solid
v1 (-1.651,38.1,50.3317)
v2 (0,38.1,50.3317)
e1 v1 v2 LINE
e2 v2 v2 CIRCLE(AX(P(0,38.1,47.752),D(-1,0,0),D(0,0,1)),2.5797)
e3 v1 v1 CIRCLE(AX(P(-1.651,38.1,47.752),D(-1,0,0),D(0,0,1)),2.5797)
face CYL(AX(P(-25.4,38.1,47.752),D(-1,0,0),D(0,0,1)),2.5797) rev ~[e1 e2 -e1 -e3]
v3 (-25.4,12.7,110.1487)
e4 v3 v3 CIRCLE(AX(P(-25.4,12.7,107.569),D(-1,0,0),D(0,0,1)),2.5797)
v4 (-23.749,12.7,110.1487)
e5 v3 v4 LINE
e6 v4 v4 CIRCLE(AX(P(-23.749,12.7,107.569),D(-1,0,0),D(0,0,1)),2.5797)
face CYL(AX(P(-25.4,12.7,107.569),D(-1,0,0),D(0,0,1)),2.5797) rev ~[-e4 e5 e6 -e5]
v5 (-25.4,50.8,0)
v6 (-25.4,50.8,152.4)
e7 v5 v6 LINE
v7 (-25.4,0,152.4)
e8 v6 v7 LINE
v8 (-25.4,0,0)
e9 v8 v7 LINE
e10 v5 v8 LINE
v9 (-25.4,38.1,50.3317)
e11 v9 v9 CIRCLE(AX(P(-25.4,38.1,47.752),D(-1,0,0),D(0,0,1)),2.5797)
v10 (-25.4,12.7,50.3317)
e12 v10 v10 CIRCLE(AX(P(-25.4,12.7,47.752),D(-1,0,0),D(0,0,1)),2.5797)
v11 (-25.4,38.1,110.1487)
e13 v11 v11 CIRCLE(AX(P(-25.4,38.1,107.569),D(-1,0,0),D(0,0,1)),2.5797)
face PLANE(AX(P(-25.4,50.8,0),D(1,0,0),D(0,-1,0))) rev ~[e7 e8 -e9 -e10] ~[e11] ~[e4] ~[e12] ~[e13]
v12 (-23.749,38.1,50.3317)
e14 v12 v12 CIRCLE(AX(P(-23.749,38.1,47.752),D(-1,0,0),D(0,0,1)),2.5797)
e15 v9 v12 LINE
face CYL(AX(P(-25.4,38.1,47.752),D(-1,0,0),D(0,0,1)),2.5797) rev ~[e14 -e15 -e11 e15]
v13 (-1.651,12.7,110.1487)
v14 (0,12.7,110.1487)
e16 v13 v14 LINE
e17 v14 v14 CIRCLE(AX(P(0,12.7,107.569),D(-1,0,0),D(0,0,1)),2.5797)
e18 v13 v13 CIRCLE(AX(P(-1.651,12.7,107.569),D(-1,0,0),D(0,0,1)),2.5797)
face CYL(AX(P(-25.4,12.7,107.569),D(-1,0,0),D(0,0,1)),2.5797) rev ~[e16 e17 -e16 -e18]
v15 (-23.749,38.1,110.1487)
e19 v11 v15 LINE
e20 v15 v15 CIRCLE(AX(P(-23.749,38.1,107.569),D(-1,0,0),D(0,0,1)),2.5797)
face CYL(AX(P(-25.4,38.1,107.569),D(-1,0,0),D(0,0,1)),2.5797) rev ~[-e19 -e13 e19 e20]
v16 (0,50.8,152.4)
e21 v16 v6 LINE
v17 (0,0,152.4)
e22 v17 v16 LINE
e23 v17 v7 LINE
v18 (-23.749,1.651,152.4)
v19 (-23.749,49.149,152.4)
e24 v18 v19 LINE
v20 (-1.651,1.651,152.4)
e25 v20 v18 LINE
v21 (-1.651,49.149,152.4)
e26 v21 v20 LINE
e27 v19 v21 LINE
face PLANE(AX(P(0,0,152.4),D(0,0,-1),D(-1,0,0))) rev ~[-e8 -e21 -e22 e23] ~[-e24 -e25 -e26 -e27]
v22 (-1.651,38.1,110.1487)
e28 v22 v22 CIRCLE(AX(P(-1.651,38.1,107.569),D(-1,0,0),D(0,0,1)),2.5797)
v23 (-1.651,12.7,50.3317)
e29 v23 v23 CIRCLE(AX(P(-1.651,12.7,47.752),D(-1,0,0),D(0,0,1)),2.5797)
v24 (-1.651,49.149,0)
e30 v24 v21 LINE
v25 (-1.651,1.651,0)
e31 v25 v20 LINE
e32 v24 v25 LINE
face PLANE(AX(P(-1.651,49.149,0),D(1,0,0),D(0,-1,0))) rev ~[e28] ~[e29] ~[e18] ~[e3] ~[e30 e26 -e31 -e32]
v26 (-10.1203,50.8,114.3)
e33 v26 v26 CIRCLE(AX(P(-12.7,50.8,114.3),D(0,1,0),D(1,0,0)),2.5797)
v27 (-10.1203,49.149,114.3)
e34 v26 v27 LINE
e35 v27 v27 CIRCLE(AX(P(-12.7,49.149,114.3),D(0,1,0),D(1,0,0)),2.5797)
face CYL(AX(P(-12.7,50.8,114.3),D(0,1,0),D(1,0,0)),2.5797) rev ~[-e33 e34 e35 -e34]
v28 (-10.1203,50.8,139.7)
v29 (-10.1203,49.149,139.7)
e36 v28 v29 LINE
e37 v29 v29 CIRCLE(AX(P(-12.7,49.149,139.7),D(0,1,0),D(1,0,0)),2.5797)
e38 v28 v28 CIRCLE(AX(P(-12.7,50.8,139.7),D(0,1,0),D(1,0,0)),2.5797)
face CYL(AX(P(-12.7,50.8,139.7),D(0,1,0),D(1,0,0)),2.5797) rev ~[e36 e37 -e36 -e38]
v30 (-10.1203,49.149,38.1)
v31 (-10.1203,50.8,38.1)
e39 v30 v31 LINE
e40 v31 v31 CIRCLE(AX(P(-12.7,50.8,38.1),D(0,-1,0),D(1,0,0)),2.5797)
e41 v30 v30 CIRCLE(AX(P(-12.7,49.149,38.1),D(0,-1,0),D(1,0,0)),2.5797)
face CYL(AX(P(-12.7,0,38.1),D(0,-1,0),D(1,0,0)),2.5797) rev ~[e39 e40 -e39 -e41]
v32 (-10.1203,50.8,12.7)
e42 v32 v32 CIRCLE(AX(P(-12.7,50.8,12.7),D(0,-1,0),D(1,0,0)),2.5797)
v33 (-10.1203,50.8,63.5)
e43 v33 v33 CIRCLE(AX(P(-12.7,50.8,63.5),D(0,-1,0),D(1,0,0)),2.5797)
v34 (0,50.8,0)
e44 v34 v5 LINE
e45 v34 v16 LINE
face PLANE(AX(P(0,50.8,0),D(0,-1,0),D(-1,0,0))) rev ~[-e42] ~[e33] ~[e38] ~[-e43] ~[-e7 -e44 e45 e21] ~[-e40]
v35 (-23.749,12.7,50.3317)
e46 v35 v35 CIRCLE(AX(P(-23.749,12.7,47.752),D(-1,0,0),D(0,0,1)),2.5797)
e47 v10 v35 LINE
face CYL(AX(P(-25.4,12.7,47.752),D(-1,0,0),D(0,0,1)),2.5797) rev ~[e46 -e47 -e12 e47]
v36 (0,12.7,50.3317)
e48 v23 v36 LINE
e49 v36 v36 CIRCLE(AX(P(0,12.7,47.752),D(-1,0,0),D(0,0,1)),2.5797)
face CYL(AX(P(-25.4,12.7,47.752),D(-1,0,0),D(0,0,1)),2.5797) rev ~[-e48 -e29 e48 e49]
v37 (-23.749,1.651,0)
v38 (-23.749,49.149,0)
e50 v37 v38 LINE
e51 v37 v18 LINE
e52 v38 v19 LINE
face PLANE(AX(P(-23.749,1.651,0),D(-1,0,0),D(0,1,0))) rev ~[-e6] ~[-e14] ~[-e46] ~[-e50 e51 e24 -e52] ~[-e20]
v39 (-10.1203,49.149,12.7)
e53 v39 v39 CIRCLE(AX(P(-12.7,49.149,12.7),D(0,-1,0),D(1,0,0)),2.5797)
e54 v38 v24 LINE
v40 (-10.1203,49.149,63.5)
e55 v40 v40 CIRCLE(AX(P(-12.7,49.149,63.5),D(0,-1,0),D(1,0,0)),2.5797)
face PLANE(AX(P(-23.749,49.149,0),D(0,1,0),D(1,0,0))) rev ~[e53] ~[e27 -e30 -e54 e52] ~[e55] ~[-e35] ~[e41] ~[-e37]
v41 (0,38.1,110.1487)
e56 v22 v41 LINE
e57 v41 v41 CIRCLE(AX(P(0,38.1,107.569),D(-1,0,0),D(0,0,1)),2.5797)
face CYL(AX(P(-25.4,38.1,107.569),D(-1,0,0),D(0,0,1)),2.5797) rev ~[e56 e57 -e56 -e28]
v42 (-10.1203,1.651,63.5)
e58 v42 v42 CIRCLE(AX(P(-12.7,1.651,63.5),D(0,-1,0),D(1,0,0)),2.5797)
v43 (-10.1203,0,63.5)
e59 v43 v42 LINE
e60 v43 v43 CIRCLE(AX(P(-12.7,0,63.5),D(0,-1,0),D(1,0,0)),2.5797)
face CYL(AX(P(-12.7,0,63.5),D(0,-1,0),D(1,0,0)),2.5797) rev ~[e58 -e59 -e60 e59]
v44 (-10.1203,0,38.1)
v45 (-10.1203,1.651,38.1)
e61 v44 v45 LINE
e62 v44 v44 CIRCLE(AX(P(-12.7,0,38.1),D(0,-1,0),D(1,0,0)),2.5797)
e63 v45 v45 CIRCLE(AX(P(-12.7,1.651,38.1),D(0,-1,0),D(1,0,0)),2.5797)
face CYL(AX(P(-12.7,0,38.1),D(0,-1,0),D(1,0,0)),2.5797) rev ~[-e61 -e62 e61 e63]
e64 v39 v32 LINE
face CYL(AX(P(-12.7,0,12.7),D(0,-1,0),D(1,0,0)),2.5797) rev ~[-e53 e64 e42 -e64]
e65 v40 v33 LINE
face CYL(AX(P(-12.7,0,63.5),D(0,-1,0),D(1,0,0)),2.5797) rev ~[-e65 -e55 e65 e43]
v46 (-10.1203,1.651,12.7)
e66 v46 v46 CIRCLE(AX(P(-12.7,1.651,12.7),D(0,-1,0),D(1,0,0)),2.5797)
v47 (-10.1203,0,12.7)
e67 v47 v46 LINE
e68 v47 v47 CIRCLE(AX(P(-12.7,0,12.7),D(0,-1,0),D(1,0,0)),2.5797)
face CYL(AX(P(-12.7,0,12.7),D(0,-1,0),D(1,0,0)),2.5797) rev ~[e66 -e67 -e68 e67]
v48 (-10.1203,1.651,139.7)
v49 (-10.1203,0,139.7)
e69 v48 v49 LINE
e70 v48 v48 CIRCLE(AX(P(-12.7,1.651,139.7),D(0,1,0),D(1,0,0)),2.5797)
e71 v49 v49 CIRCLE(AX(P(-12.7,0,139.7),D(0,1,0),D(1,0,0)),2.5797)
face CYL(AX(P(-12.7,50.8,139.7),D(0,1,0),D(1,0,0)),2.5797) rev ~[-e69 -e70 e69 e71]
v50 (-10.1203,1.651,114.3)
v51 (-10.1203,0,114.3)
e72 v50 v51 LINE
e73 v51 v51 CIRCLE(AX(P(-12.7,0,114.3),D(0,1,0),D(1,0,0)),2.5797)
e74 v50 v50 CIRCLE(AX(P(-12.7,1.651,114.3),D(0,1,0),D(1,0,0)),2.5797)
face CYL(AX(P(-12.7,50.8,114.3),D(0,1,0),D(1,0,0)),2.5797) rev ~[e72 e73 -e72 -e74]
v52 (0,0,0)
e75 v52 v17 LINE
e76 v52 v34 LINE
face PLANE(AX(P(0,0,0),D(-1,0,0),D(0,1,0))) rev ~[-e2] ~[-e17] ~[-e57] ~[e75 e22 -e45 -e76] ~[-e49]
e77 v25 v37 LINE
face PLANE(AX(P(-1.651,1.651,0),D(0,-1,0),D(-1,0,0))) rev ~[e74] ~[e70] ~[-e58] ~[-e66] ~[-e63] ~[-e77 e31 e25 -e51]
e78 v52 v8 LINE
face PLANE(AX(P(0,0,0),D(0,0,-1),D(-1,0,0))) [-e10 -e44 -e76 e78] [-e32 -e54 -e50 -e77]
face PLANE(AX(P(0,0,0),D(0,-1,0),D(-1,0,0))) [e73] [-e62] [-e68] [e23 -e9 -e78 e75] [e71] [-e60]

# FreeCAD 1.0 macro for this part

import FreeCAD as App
import Part
import Sketcher

V = App.Vector
Q = App.Units.Quantity


def add_polygon(sketch, points):
    """Adds a closed chain of lines whose ends are joined by coincident constraints."""
    first, n = sketch.GeometryCount, len(points)
    for a, b in zip(points, points[1:] + points[:1]):
        sketch.addGeometry(Part.LineSegment(App.Vector(*a, 0), App.Vector(*b, 0)), False)
    for i in range(n):
        sketch.addConstraint(Sketcher.Constraint("Coincident", first + i, 2, first + (i + 1) % n, 1))

doc = App.newDocument("Part")
body = doc.addObject("PartDesign::Body", "Body")

sketch1 = body.newObject("Sketcher::SketchObject", "Sketch")
sketch1.AttachmentSupport = (doc.getObject("XY_Plane"), [""])
sketch1.MapMode = "FlatFace"
add_polygon(sketch1, [(0, 51), (0, 0), (-25, 0), (-25, 51)])
add_polygon(sketch1, [(-2, 49), (-24, 49), (-24, 2), (-2, 2)])
sketch1.addConstraint(Sketcher.Constraint("Vertical", 0))
sketch1.addConstraint(Sketcher.Constraint("Horizontal", 1))
sketch1.addConstraint(Sketcher.Constraint("Vertical", 2))
sketch1.addConstraint(Sketcher.Constraint("Horizontal", 3))
sketch1.addConstraint(Sketcher.Constraint("Horizontal", 4))
sketch1.addConstraint(Sketcher.Constraint("Vertical", 5))
sketch1.addConstraint(Sketcher.Constraint("Horizontal", 6))
sketch1.addConstraint(Sketcher.Constraint("Vertical", 7))
sketch1.addConstraint(Sketcher.Constraint("Coincident", 0, 2, -1, 1))
sketch1.addConstraint(Sketcher.Constraint("DistanceX", 1, 2, 1, 1, Q("1 in")))
sketch1.addConstraint(Sketcher.Constraint("DistanceY", 0, 2, 0, 1, Q("2 in")))
sketch1.addConstraint(Sketcher.Constraint("DistanceY", -1, 1, 5, 2, Q("0.065 in")))
sketch1.addConstraint(Sketcher.Constraint("DistanceX", 6, 2, -1, 1, Q("0.065 in")))
sketch1.addConstraint(Sketcher.Constraint("DistanceX", 2, 2, 4, 2, Q("0.065 in")))
sketch1.addConstraint(Sketcher.Constraint("DistanceY", 4, 2, 2, 2, Q("0.065 in")))
pad1 = body.newObject("PartDesign::Pad", "Pad")
pad1.Profile = sketch1
pad1.Length = Q("6 in")

sketch2 = body.newObject("Sketcher::SketchObject", "Sketch001")
sketch2.AttachmentSupport = (doc.getObject("XZ_Plane"), [""])
sketch2.MapMode = "FlatFace"
sketch2.addGeometry(Part.Circle(V(38.1, 12.7, 0), V(0, 0, 1), 2.6), False)
sketch2.addGeometry(Part.Circle(V(12.7, 12.7, 0), V(0, 0, 1), 2.6), False)
sketch2.addGeometry(Part.Circle(V(-12.7, 12.7, 0), V(0, 0, 1), 2.6), False)
sketch2.addGeometry(Part.Circle(V(-12.7, 38.1, 0), V(0, 0, 1), 2.6), False)
sketch2.addGeometry(Part.Circle(V(-12.7, 63.5, 0), V(0, 0, 1), 2.6), False)
sketch2.addConstraint(Sketcher.Constraint("Equal", 0, 1))
sketch2.addConstraint(Sketcher.Constraint("Equal", 1, 2))
sketch2.addConstraint(Sketcher.Constraint("Equal", 2, 3))
sketch2.addConstraint(Sketcher.Constraint("Equal", 3, 4))
sketch2.addConstraint(Sketcher.Constraint("Symmetric", 1, 3, 2, 3, -2))
sketch2.addConstraint(Sketcher.Constraint("Horizontal", 0, 3, 1, 3))
sketch2.addConstraint(Sketcher.Constraint("Vertical", 2, 3, 3, 3))
sketch2.addConstraint(Sketcher.Constraint("Vertical", 3, 3, 4, 3))
sketch2.addConstraint(Sketcher.Constraint("Diameter", 0, Q("0.203126 in")))
sketch2.addConstraint(Sketcher.Constraint("DistanceX", 1, 3, 0, 3, Q("1 in")))
sketch2.addConstraint(Sketcher.Constraint("DistanceX", 2, 3, 1, 3, Q("1 in")))
sketch2.addConstraint(Sketcher.Constraint("DistanceY", 2, 3, 3, 3, Q("1 in")))
sketch2.addConstraint(Sketcher.Constraint("DistanceY", 3, 3, 4, 3, Q("1 in")))
sketch2.addConstraint(Sketcher.Constraint("DistanceY", -1, 1, 0, 3, Q("0.5 in")))
pocket1 = body.newObject("PartDesign::Pocket", "Pocket")
pocket1.Profile = sketch2
pocket1.Length = Q("3 in")

sketch3 = body.newObject("Sketcher::SketchObject", "Sketch002")
sketch3.AttachmentSupport = (doc.getObject("YZ_Plane"), [""])
sketch3.MapMode = "FlatFace"
sketch3.AttachmentOffset = App.Placement(V(0, 0, -1 * 25.4), App.Rotation())
sketch3.addGeometry(Part.Circle(V(38.1, 107.6, 0), V(0, 0, 1), 2.6), False)
sketch3.addGeometry(Part.Circle(V(38.1, 47.8, 0), V(0, 0, 1), 2.6), False)
sketch3.addGeometry(Part.Circle(V(12.7, 107.6, 0), V(0, 0, 1), 2.6), False)
sketch3.addGeometry(Part.Circle(V(12.7, 47.8, 0), V(0, 0, 1), 2.6), False)
sketch3.addConstraint(Sketcher.Constraint("Equal", 0, 1))
sketch3.addConstraint(Sketcher.Constraint("Equal", 1, 2))
sketch3.addConstraint(Sketcher.Constraint("Equal", 2, 3))
sketch3.addConstraint(Sketcher.Constraint("Horizontal", 0, 3, 2, 3))
sketch3.addConstraint(Sketcher.Constraint("Horizontal", 1, 3, 3, 3))
sketch3.addConstraint(Sketcher.Constraint("Vertical", 0, 3, 1, 3))
sketch3.addConstraint(Sketcher.Constraint("Vertical", 2, 3, 3, 3))
sketch3.addConstraint(Sketcher.Constraint("Diameter", 0, Q("0.203126 in")))
sketch3.addConstraint(Sketcher.Constraint("DistanceX", 2, 3, 0, 3, Q("1 in")))
sketch3.addConstraint(Sketcher.Constraint("DistanceX", -1, 1, 2, 3, Q("0.5 in")))
sketch3.addConstraint(Sketcher.Constraint("DistanceY", 1, 3, 0, 3, Q("2.355 in")))
sketch3.addConstraint(Sketcher.Constraint("DistanceY", -1, 1, 1, 3, Q("1.88 in")))
pocket2 = body.newObject("PartDesign::Pocket", "Pocket001")
pocket2.Profile = sketch3
pocket2.Length = Q("1 in")
pocket2.Reversed = True

sketch4 = body.newObject("Sketcher::SketchObject", "Sketch003")
sketch4.AttachmentSupport = (doc.getObject("XZ_Plane"), [""])
sketch4.MapMode = "FlatFace"
sketch4.AttachmentOffset = App.Placement(V(0, 0, -2 * 25.4), App.Rotation())
sketch4.addGeometry(Part.Circle(V(-12.7, 139.7, 0), V(0, 0, 1), 2.6), False)
sketch4.addGeometry(Part.Circle(V(-12.7, 114.3, 0), V(0, 0, 1), 2.6), False)
sketch4.addConstraint(Sketcher.Constraint("Equal", 0, 1))
sketch4.addConstraint(Sketcher.Constraint("Vertical", 0, 3, 1, 3))
sketch4.addConstraint(Sketcher.Constraint("Diameter", 0, Q("0.203126 in")))
sketch4.addConstraint(Sketcher.Constraint("DistanceX", 0, 3, -1, 1, Q("0.5 in")))
sketch4.addConstraint(Sketcher.Constraint("DistanceY", 1, 3, 0, 3, Q("1 in")))
sketch4.addConstraint(Sketcher.Constraint("DistanceY", -1, 1, 0, 3, Q("5.5 in")))
pocket3 = body.newObject("PartDesign::Pocket", "Pocket002")
pocket3.Profile = sketch4
pocket3.Length = Q("2 in")
pocket3.Reversed = True

doc.recompute()
